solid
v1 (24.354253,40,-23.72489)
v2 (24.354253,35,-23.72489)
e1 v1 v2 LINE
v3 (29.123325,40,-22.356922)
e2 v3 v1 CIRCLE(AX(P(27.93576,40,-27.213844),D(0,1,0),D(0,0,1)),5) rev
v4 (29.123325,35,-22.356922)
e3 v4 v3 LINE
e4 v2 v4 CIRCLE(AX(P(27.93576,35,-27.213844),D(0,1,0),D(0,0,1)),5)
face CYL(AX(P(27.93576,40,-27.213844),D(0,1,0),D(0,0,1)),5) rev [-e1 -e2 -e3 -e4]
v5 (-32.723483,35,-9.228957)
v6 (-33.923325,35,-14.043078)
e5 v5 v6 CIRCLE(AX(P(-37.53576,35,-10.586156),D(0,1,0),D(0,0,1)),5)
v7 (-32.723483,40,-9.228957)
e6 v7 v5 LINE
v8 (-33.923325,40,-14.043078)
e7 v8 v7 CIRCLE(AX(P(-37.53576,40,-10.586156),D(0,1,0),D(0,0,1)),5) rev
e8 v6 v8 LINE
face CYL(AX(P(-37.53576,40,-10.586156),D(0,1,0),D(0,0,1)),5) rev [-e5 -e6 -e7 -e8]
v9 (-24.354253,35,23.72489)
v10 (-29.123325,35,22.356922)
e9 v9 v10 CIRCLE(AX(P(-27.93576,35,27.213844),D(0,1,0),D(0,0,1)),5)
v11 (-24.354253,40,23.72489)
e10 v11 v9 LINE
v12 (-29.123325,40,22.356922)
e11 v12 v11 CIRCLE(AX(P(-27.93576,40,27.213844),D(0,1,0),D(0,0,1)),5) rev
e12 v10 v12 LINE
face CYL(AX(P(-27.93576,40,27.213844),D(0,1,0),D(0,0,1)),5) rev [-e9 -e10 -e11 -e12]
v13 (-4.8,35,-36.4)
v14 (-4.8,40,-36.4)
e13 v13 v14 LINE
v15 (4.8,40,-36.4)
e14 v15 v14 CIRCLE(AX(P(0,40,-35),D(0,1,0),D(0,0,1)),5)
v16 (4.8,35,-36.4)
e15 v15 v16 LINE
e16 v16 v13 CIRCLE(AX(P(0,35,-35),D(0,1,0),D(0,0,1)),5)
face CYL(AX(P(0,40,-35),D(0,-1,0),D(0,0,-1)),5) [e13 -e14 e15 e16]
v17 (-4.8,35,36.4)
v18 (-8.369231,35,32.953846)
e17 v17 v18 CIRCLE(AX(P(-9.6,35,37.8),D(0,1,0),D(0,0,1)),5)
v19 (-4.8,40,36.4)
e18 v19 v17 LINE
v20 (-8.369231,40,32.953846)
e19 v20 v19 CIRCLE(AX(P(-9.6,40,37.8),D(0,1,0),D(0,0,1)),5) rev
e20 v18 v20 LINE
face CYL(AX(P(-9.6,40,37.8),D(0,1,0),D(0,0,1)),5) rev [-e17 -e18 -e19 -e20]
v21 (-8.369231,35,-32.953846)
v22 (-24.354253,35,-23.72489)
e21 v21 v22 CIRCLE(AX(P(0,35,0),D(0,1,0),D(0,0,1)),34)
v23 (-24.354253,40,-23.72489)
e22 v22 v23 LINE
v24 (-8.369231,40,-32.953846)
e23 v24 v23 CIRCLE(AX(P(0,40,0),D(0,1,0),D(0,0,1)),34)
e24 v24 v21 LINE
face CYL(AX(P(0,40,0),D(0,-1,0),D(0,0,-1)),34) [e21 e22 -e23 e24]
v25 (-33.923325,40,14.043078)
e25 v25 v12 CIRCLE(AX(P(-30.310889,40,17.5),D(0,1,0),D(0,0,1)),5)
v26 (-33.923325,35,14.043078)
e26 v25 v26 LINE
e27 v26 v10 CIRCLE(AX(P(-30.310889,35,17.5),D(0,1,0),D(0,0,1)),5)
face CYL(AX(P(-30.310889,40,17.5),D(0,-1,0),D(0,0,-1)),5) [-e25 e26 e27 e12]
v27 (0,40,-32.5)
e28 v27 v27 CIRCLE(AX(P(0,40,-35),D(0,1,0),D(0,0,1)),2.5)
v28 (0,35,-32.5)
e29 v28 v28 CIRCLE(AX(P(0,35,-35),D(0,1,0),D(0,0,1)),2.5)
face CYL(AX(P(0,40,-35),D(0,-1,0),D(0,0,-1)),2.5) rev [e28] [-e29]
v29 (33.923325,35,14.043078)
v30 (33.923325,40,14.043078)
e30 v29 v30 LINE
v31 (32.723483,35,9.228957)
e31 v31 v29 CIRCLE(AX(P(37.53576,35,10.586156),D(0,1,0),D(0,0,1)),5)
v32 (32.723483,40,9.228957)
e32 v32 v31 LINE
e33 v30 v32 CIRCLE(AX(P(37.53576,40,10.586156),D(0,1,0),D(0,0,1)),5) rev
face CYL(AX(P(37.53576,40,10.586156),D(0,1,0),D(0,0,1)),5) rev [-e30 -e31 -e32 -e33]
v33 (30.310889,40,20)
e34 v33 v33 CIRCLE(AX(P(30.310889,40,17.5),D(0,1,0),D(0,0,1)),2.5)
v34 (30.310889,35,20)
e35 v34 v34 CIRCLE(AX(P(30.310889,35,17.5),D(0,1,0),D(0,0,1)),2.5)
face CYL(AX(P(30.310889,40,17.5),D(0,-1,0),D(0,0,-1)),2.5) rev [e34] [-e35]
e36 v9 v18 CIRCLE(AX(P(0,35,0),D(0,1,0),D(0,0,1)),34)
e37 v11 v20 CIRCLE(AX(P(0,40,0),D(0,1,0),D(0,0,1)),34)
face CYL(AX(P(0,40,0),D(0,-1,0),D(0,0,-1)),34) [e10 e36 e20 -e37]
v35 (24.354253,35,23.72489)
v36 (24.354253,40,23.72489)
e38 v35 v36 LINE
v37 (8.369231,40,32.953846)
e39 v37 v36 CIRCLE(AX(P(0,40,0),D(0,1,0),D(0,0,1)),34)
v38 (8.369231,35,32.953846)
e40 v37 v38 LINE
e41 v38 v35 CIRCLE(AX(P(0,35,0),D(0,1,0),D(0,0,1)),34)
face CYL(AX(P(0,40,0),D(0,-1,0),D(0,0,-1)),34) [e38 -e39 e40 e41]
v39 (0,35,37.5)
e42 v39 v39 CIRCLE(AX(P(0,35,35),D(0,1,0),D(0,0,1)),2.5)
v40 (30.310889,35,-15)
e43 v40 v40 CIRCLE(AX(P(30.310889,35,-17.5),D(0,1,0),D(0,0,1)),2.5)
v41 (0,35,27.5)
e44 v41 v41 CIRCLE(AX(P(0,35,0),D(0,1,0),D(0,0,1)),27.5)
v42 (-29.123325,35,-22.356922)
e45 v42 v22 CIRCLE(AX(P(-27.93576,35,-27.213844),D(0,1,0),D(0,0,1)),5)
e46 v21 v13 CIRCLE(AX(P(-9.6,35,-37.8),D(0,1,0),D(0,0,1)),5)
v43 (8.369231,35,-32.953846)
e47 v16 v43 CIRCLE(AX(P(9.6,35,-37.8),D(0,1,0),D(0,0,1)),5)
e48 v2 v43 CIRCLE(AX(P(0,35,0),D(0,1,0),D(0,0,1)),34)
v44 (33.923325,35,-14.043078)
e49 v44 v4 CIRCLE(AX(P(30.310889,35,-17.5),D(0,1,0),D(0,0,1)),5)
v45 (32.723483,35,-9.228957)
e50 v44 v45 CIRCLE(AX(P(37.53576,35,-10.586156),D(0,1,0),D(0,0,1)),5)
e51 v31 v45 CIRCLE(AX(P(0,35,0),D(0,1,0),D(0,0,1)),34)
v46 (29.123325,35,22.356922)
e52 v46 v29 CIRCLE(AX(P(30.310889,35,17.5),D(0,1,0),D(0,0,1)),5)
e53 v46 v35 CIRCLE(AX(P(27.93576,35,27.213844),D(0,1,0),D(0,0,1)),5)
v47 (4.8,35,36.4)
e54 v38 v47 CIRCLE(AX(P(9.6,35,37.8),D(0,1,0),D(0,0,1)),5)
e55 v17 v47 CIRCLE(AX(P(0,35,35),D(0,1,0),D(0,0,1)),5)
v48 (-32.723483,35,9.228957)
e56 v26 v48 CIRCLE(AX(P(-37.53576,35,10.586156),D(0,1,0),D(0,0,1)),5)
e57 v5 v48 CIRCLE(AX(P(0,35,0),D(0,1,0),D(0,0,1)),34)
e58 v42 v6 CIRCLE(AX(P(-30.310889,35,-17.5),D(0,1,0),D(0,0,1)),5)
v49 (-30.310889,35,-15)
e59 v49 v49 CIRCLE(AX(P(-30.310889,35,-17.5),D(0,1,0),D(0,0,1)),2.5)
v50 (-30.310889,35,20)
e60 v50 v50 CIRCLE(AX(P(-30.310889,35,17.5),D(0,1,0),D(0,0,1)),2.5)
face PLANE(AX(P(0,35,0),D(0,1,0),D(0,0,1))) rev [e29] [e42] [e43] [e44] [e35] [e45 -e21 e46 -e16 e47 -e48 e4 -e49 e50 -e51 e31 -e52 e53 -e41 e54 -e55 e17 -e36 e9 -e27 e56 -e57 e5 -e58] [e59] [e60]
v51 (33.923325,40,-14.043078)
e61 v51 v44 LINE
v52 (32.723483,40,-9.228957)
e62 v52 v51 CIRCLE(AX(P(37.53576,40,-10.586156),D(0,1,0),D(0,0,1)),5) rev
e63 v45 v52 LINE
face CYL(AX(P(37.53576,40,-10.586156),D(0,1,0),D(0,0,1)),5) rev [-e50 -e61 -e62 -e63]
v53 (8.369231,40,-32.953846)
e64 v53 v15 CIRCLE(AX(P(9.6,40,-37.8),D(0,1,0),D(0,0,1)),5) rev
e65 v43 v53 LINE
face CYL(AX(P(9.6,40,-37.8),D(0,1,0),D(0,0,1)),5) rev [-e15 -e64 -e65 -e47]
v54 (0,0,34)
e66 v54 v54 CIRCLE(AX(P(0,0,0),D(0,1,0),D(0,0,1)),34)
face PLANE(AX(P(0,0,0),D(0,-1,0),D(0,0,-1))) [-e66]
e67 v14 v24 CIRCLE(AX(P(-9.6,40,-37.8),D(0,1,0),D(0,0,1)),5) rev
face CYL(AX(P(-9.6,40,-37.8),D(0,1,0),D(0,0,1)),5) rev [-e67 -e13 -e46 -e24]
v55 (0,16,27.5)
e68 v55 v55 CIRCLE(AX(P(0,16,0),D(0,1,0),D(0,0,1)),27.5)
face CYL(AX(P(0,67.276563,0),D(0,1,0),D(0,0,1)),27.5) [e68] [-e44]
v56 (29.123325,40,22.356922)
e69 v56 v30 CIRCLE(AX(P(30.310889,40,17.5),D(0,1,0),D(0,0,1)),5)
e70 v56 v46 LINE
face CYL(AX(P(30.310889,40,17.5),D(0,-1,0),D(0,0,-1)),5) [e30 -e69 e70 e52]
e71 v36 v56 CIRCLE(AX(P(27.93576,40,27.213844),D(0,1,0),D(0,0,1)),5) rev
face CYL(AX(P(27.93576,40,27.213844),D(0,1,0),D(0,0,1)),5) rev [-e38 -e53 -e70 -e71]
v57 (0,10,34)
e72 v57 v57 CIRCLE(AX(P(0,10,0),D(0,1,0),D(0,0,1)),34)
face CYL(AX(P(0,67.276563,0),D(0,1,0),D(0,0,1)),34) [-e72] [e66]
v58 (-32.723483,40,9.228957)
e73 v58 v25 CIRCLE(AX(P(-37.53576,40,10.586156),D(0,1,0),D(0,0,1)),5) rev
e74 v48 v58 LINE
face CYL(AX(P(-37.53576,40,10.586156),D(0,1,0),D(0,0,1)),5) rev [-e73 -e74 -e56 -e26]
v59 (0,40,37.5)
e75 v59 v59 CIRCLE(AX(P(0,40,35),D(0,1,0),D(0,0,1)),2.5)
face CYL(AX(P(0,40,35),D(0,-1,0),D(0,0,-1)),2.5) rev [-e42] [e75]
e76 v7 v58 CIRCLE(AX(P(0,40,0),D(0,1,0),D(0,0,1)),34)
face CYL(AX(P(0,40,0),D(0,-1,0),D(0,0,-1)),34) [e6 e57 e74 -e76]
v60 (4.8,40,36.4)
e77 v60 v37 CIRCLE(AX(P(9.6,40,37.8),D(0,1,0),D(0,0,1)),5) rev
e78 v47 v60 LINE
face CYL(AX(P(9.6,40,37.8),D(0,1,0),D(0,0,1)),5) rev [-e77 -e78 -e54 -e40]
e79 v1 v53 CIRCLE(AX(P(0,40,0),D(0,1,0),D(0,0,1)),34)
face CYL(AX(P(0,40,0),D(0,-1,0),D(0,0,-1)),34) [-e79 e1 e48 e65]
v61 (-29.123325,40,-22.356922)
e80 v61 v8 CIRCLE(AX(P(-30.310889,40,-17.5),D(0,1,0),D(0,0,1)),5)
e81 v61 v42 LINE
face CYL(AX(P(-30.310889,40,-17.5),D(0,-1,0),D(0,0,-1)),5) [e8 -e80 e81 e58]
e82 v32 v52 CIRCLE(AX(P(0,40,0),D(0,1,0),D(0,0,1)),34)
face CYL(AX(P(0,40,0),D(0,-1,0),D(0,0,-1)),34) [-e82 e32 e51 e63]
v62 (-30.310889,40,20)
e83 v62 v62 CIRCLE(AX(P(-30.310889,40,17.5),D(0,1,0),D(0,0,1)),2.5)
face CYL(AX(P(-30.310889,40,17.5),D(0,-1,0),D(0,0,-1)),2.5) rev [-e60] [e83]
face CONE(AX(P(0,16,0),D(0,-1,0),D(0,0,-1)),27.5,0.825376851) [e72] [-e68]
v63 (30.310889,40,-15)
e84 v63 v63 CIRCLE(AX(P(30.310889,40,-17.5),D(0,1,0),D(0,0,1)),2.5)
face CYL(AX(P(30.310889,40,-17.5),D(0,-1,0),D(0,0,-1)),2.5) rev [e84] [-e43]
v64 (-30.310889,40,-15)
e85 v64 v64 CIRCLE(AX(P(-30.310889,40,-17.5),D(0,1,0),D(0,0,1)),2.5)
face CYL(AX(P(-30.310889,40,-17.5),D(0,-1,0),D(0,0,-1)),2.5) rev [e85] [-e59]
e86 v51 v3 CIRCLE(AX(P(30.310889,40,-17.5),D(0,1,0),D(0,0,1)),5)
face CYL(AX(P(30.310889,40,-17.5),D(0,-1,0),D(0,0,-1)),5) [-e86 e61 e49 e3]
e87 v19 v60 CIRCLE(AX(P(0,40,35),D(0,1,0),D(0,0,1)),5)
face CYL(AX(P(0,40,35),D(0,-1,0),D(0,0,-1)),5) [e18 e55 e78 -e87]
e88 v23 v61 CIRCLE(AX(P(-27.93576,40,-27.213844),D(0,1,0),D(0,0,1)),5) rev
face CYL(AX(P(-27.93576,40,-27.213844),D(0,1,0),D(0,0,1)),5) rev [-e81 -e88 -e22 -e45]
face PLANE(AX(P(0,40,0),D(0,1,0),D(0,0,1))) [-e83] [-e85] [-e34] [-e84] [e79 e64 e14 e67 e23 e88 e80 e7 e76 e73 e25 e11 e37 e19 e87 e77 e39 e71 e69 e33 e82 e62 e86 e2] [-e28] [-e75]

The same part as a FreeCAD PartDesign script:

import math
import FreeCAD as App
import Part
import Sketcher
from FreeCAD import Vector


def edges_at(feature, points):
    """Names of the edges that pass closest to the given points."""
    edges = feature.Shape.Edges
    near = lambda p: min(range(len(edges)), key=lambda i: edges[i].distToShape(Part.Vertex(*p))[0])
    return sorted({f"Edge{near(p) + 1}" for p in points})

doc = App.newDocument("Part")
body = doc.addObject("PartDesign::Body", "Body")

sketch1 = body.newObject("Sketcher::SketchObject", "Sketch")
sketch1.AttachmentSupport = (doc.getObject("XY_Plane"), [""])
sketch1.MapMode = "FlatFace"
sketch1.addGeometry([
    Part.LineSegment(Vector(-34, 0, 0), Vector(0, 0, 0)),
    Part.LineSegment(Vector(0, 0, 0), Vector(0, 35, 0)),
    Part.LineSegment(Vector(0, 35, 0), Vector(-28, 35, 0)),
    Part.LineSegment(Vector(-28, 35, 0), Vector(-28, 16, 0)),
    Part.LineSegment(Vector(-28, 16, 0), Vector(-34, 10, 0)),
    Part.LineSegment(Vector(-34, 10, 0), Vector(-34, 0, 0)),
], False)
sketch1.addConstraint([
    Sketcher.Constraint("Coincident", 0, 2, 1, 1),
    Sketcher.Constraint("Coincident", 1, 2, 2, 1),
    Sketcher.Constraint("Coincident", 2, 2, 3, 1),
    Sketcher.Constraint("Coincident", 3, 2, 4, 1),
    Sketcher.Constraint("Coincident", 4, 2, 5, 1),
    Sketcher.Constraint("Coincident", 5, 2, 0, 1),
    Sketcher.Constraint("Horizontal", 0),
    Sketcher.Constraint("Vertical", 1),
    Sketcher.Constraint("Horizontal", 2),
    Sketcher.Constraint("Vertical", 3),
    Sketcher.Constraint("Vertical", 5),
    Sketcher.Constraint("Coincident", 0, 2, -1, 1),
    Sketcher.Constraint("DistanceX", 0, 1, 0, 2, 34.0),
    Sketcher.Constraint("DistanceY", 1, 1, 1, 2, 35.0),
    Sketcher.Constraint("DistanceY", 3, 2, 3, 1, 19.0),
    Sketcher.Constraint("DistanceY", 5, 2, 5, 1, 10.0),
    Sketcher.Constraint("DistanceX", 2, 2, 2, 1, 27.5),
])
revolution = body.newObject("PartDesign::Revolution", "Revolution")
revolution.Profile = sketch1
revolution.ReferenceAxis = (sketch1, ["V_Axis"])
revolution.Angle = 360

sketch2 = body.newObject("Sketcher::SketchObject", "Sketch001")
sketch2.AttachmentSupport = (doc.getObject("XZ_Plane"), [""])
sketch2.MapMode = "FlatFace"
sketch2.AttachmentOffset = App.Placement(Vector(0, 0, -40), App.Rotation())
sketch2.addGeometry([
    Part.ArcOfCircle(Part.Circle(Vector(30.3, -17.5, 0), Vector(0, 0, 1), 5), math.radians(-136), math.radians(76)),
    Part.ArcOfCircle(Part.Circle(Vector(0, 0, 0), Vector(0, 0, 1), 34), math.radians(-82), math.radians(-38)),
    Part.ArcOfCircle(Part.Circle(Vector(0, -35, 0), Vector(0, 0, 1), 5), math.radians(164), math.radians(376)),
    Part.ArcOfCircle(Part.Circle(Vector(0, 0, 0), Vector(0, 0, 1), 34), math.radians(-142), math.radians(-98)),
    Part.ArcOfCircle(Part.Circle(Vector(-30.3, -17.5, 0), Vector(0, 0, 1), 5), math.radians(104), math.radians(316)),
    Part.ArcOfCircle(Part.Circle(Vector(0, 0, 0), Vector(0, 0, 1), 34), math.radians(158), math.radians(202)),
    Part.ArcOfCircle(Part.Circle(Vector(-30.3, 17.5, 0), Vector(0, 0, 1), 5), math.radians(44), math.radians(256)),
    Part.ArcOfCircle(Part.Circle(Vector(0, 0, 0), Vector(0, 0, 1), 34), math.radians(98), math.radians(142)),
    Part.ArcOfCircle(Part.Circle(Vector(0, 35, 0), Vector(0, 0, 1), 5), math.radians(-16), math.radians(196)),
    Part.ArcOfCircle(Part.Circle(Vector(0, 0, 0), Vector(0, 0, 1), 34), math.radians(38), math.radians(82)),
    Part.ArcOfCircle(Part.Circle(Vector(30.3, 17.5, 0), Vector(0, 0, 1), 5), math.radians(-76), math.radians(136)),
    Part.ArcOfCircle(Part.Circle(Vector(0, 0, 0), Vector(0, 0, 1), 34), math.radians(-22), math.radians(22)),
    Part.Circle(Vector(-30.3, 17.5, 0), Vector(0, 0, 1), 2.5),
    Part.Circle(Vector(0, 35, 0), Vector(0, 0, 1), 2.5),
    Part.Circle(Vector(30.3, 17.5, 0), Vector(0, 0, 1), 2.5),
    Part.Circle(Vector(-30.3, -17.5, 0), Vector(0, 0, 1), 2.5),
    Part.Circle(Vector(30.3, -17.5, 0), Vector(0, 0, 1), 2.5),
    Part.Circle(Vector(0, -35, 0), Vector(0, 0, 1), 2.5),
], False)
sketch2.addConstraint([
    Sketcher.Constraint("Coincident", 0, 1, 1, 2),
    Sketcher.Constraint("Coincident", 1, 1, 2, 2),
    Sketcher.Constraint("Coincident", 2, 1, 3, 2),
    Sketcher.Constraint("Coincident", 3, 1, 4, 2),
    Sketcher.Constraint("Coincident", 4, 1, 5, 2),
    Sketcher.Constraint("Coincident", 5, 1, 6, 2),
    Sketcher.Constraint("Coincident", 6, 1, 7, 2),
    Sketcher.Constraint("Coincident", 7, 1, 8, 2),
    Sketcher.Constraint("Coincident", 8, 1, 9, 2),
    Sketcher.Constraint("Coincident", 9, 1, 10, 2),
    Sketcher.Constraint("Coincident", 10, 1, 11, 2),
    Sketcher.Constraint("Coincident", 11, 1, 0, 2),
    Sketcher.Constraint("Coincident", 1, 3, -1, 1),
    Sketcher.Constraint("Coincident", 3, 3, -1, 1),
    Sketcher.Constraint("Coincident", 5, 3, -1, 1),
    Sketcher.Constraint("Coincident", 7, 3, -1, 1),
    Sketcher.Constraint("Coincident", 9, 3, -1, 1),
    Sketcher.Constraint("Coincident", 11, 3, -1, 1),
    Sketcher.Constraint("Coincident", 12, 3, 6, 3),
    Sketcher.Constraint("Coincident", 13, 3, 8, 3),
    Sketcher.Constraint("Coincident", 14, 3, 10, 3),
    Sketcher.Constraint("Coincident", 15, 3, 4, 3),
    Sketcher.Constraint("Coincident", 16, 3, 0, 3),
    Sketcher.Constraint("Coincident", 17, 3, 2, 3),
    Sketcher.Constraint("Equal", 0, 2),
    Sketcher.Constraint("Equal", 1, 3),
    Sketcher.Constraint("Equal", 2, 4),
    Sketcher.Constraint("Equal", 3, 5),
    Sketcher.Constraint("Equal", 4, 6),
    Sketcher.Constraint("Equal", 5, 7),
    Sketcher.Constraint("Equal", 6, 8),
    Sketcher.Constraint("Equal", 7, 9),
    Sketcher.Constraint("Equal", 8, 10),
    Sketcher.Constraint("Equal", 9, 11),
    Sketcher.Constraint("Equal", 12, 13),
    Sketcher.Constraint("Equal", 13, 14),
    Sketcher.Constraint("Equal", 14, 15),
    Sketcher.Constraint("Equal", 15, 16),
    Sketcher.Constraint("Equal", 16, 17),
    Sketcher.Constraint("Symmetric", 0, 3, 6, 3, -1, 1),
    Sketcher.Constraint("Symmetric", 2, 3, 8, 3, -1, 1),
    Sketcher.Constraint("Symmetric", 4, 3, 10, 3, -1, 1),
    Sketcher.Constraint("Symmetric", 0, 3, 4, 3, -2),
    Sketcher.Constraint("PointOnObject", 2, 3, -2),
    Sketcher.Constraint("Diameter", 12, 5.0),
    Sketcher.Constraint("Radius", 0, 5.0),
    Sketcher.Constraint("Radius", 1, 34.0),
    Sketcher.Constraint("DistanceY", 2, 3, -1, 1, 35.0),
    Sketcher.Constraint("DistanceY", 4, 3, 6, 3, 35.0),
    Sketcher.Constraint("DistanceX", 4, 1, 4, 3, 1.245201),
])
pad1 = body.newObject("PartDesign::Pad", "Pad")
pad1.Profile = sketch2
pad1.Length = 5
doc.recompute()

fillet = body.newObject("PartDesign::Fillet", "Fillet")
fillet.Base = (pad1, edges_at(pad1, [
    (-4.816, 37.5, 33.657),
    (4.816, 37.5, 33.657),
    (26.74, 37.5, 21),
    (31.556, 37.5, 12.658),
    (31.556, 37.5, -12.658),
    (26.74, 37.5, -21),
    (4.816, 37.5, -33.657),
    (-4.816, 37.5, -33.657),
    (-26.74, 37.5, -21),
    (-31.556, 37.5, -12.658),
    (-31.556, 37.5, 12.658),
    (-26.74, 37.5, 21),
]))
fillet.Radius = 5

doc.recompute()
